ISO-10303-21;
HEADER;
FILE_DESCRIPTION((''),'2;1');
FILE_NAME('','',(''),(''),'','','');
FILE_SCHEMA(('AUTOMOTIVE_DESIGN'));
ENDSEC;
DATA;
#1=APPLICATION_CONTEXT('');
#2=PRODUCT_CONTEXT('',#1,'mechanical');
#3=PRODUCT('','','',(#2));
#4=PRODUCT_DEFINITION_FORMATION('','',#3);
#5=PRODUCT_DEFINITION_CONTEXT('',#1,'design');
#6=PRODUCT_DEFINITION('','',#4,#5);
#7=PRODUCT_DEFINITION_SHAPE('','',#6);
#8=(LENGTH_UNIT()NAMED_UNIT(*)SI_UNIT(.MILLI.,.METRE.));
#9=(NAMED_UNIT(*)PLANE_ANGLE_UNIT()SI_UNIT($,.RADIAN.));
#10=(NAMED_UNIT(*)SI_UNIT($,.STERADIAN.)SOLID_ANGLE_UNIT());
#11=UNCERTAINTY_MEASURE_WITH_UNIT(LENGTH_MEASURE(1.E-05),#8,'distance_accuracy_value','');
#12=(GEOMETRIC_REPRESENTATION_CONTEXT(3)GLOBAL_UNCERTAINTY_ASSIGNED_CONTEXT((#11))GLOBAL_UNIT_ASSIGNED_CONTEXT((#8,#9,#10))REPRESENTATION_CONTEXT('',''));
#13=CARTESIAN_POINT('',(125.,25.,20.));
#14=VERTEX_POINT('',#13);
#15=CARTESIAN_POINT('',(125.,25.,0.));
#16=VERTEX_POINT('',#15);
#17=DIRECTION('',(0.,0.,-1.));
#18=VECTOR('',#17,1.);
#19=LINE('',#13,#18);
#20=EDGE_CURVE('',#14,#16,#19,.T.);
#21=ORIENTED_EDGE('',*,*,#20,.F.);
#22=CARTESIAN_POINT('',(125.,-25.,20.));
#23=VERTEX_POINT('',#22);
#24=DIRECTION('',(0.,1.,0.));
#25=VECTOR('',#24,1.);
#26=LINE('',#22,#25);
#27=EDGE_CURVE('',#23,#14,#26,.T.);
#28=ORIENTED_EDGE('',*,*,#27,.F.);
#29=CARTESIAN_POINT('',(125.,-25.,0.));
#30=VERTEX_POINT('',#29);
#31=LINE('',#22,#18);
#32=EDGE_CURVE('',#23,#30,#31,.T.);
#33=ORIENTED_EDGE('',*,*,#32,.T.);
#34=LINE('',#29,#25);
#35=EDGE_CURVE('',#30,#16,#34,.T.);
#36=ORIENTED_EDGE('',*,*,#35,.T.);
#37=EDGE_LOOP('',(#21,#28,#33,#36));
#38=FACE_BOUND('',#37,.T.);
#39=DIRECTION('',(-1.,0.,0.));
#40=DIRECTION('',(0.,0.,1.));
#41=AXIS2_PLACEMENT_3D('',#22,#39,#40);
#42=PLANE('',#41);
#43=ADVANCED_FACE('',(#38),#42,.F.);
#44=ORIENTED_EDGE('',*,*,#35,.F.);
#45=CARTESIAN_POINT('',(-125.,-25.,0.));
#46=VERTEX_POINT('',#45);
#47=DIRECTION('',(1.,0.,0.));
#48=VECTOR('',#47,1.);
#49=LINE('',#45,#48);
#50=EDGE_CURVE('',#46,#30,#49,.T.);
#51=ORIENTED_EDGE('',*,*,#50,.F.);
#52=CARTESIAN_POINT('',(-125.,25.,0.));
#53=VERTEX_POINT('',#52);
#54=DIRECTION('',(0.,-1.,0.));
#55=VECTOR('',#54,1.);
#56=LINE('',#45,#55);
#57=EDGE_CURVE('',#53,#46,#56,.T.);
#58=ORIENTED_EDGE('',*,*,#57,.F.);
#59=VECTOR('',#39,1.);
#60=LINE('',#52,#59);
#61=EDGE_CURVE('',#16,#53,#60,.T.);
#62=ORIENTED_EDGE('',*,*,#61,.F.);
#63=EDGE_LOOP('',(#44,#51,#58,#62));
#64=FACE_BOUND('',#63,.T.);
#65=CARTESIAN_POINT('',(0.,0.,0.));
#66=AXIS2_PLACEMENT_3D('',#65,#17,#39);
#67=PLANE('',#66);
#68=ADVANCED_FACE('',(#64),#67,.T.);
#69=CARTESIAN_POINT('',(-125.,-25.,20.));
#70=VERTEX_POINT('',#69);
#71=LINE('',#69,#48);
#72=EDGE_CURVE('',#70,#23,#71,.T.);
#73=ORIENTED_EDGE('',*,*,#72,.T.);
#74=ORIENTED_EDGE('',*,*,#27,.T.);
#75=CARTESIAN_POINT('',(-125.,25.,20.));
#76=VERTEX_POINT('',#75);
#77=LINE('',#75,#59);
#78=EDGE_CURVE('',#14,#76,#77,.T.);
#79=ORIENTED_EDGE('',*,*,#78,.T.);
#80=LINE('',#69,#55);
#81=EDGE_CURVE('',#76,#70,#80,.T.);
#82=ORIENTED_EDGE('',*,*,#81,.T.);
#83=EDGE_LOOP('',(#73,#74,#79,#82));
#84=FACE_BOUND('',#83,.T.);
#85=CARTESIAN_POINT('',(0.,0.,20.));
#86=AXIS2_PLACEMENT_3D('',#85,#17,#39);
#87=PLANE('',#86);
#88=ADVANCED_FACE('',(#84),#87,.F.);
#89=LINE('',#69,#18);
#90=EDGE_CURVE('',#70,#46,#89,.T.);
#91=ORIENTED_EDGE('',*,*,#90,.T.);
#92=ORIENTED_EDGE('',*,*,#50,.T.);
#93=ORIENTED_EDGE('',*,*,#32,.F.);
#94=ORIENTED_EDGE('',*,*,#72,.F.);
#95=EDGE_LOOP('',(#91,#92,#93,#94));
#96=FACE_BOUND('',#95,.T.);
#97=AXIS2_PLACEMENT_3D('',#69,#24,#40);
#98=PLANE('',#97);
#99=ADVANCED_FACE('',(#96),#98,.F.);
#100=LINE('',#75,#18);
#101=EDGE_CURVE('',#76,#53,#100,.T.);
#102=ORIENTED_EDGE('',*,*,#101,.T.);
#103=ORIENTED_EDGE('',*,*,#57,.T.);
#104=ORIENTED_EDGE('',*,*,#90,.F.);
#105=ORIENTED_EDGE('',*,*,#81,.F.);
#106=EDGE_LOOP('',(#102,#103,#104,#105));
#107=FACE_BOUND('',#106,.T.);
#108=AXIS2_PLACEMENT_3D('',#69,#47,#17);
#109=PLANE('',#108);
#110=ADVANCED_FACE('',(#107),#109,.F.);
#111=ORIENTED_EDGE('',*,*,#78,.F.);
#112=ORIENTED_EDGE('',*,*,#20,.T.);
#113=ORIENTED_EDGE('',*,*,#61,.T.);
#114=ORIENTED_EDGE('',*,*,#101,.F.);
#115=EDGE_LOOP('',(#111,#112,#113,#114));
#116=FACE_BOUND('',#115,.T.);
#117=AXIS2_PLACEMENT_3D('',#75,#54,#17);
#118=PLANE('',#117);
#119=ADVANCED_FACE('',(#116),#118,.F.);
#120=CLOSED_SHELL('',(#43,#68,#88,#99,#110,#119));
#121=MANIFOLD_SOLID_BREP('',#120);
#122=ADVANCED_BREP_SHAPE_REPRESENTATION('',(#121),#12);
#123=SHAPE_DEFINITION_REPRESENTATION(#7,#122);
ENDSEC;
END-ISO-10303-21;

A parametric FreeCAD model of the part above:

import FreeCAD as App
import Part
import Sketcher

V = App.Vector
Q = App.Units.Quantity

doc = App.newDocument("Part")
body = doc.addObject("PartDesign::Body", "Body")

sketch1 = body.newObject("Sketcher::SketchObject", "Sketch")
sketch1.AttachmentSupport = (doc.getObject("XY_Plane"), [""])
sketch1.MapMode = "FlatFace"
sketch1.addGeometry([
    Part.LineSegment(V(-125, 25, 0), V(-125, -25, 0)),
    Part.LineSegment(V(-125, -25, 0), V(125, -25, 0)),
    Part.LineSegment(V(125, -25, 0), V(125, 25, 0)),
    Part.LineSegment(V(125, 25, 0), V(-125, 25, 0)),
], False)
sketch1.addConstraint([
    Sketcher.Constraint("Coincident", 0, 2, 1, 1),
    Sketcher.Constraint("Coincident", 1, 2, 2, 1),
    Sketcher.Constraint("Coincident", 2, 2, 3, 1),
    Sketcher.Constraint("Coincident", 3, 2, 0, 1),
    Sketcher.Constraint("Vertical", 0),
    Sketcher.Constraint("Horizontal", 1),
    Sketcher.Constraint("Vertical", 2),
    Sketcher.Constraint("Horizontal", 3),
    Sketcher.Constraint("Symmetric", 0, 2, 2, 2, -1, 1),
    Sketcher.Constraint("DistanceX", 1, 1, 1, 2, Q("250 mm")),
    Sketcher.Constraint("DistanceY", 0, 2, 0, 1, Q("50 mm")),
])
pad1 = body.newObject("PartDesign::Pad", "Pad")
pad1.Profile = sketch1
pad1.Length = 20

doc.recompute()
